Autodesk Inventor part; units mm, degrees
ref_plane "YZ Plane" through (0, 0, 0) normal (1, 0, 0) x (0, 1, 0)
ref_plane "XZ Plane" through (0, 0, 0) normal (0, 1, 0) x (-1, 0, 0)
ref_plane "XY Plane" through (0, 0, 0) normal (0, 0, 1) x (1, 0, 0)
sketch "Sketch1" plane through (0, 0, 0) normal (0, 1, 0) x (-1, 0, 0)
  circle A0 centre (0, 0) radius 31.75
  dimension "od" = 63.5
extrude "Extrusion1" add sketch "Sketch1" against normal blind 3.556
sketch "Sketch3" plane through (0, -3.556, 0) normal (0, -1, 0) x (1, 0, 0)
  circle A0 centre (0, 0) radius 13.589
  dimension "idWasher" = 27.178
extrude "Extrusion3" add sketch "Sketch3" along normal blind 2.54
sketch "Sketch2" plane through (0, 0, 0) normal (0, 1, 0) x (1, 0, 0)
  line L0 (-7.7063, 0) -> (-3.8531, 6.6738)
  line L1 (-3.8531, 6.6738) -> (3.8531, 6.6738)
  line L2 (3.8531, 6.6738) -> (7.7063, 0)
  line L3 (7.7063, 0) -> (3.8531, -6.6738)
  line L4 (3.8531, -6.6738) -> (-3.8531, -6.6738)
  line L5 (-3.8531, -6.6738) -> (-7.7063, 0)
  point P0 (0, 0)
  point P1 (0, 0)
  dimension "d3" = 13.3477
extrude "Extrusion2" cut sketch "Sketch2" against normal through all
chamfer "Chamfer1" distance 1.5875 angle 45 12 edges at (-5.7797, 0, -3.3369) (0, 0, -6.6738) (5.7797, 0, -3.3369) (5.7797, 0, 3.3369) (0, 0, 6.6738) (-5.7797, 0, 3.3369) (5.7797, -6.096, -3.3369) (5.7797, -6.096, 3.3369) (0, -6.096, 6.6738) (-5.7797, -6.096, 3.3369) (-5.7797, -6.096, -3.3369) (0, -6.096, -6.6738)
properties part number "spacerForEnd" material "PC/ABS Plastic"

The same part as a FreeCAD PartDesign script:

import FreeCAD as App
import Part
import Sketcher
from FreeCAD import Vector
Q = App.Units.Quantity


def edges_at(feature, points):
    """Names of the edges that pass closest to the given points."""
    edges = feature.Shape.Edges
    near = lambda p: min(range(len(edges)), key=lambda i: edges[i].distToShape(Part.Vertex(*p))[0])
    return sorted({f"Edge{near(p) + 1}" for p in points})

doc = App.newDocument("Part")
body = doc.addObject("PartDesign::Body", "Body")

# Sketch on XZ plane
sketch1 = body.newObject("Sketcher::SketchObject", "Sketch")
sketch1.AttachmentSupport = (doc.getObject("XZ_Plane"), [""])
sketch1.MapMode = "FlatFace"
sketch1.addGeometry(Part.Circle(Vector(0, 0, 0), Vector(0, 0, 1), 31.75), False)
sketch1.addConstraint(Sketcher.Constraint("Coincident", 0, 3, -1, 1))
sketch1.addConstraint(Sketcher.Constraint("Diameter", 0, Q("2.5 in")))
pad1 = body.newObject("PartDesign::Pad", "Pad")
pad1.Profile = sketch1
pad1.Length = Q("0.14 in")

# Sketch on XZ plane
sketch2 = body.newObject("Sketcher::SketchObject", "Sketch001")
sketch2.AttachmentSupport = (doc.getObject("XZ_Plane"), [""])
sketch2.MapMode = "FlatFace"
sketch2.AttachmentOffset = App.Placement(Vector(0, 0, 0.14 * 25.4), App.Rotation())
sketch2.addGeometry(Part.Circle(Vector(0, 0, 0), Vector(0, 0, 1), 13.589), False)
sketch2.addConstraint(Sketcher.Constraint("Coincident", 0, 3, -1, 1))
sketch2.addConstraint(Sketcher.Constraint("Diameter", 0, Q("1.07 in")))
pad2 = body.newObject("PartDesign::Pad", "Pad001")
pad2.Profile = sketch2
pad2.Length = Q("0.1 in")

# Sketch on XZ plane
sketch3 = body.newObject("Sketcher::SketchObject", "Sketch002")
sketch3.AttachmentSupport = (doc.getObject("XZ_Plane"), [""])
sketch3.MapMode = "FlatFace"
sketch3.addGeometry(Part.LineSegment(Vector(-3.8531, -6.6738, 0), Vector(-7.7063, 0, 0)), False)
sketch3.addGeometry(Part.LineSegment(Vector(-7.7063, 0, 0), Vector(-3.8531, 6.6738, 0)), False)
sketch3.addGeometry(Part.LineSegment(Vector(-3.8531, 6.6738, 0), Vector(3.8531, 6.6738, 0)), False)
sketch3.addGeometry(Part.LineSegment(Vector(3.8531, 6.6738, 0), Vector(7.7063, 0, 0)), False)
sketch3.addGeometry(Part.LineSegment(Vector(7.7063, 0, 0), Vector(3.8531, -6.6738, 0)), False)
sketch3.addGeometry(Part.LineSegment(Vector(3.8531, -6.6738, 0), Vector(-3.8531, -6.6738, 0)), False)
sketch3.addConstraint(Sketcher.Constraint("Coincident", 0, 2, 1, 1))
sketch3.addConstraint(Sketcher.Constraint("Coincident", 1, 2, 2, 1))
sketch3.addConstraint(Sketcher.Constraint("Coincident", 2, 2, 3, 1))
sketch3.addConstraint(Sketcher.Constraint("Coincident", 3, 2, 4, 1))
sketch3.addConstraint(Sketcher.Constraint("Coincident", 4, 2, 5, 1))
sketch3.addConstraint(Sketcher.Constraint("Coincident", 5, 2, 0, 1))
sketch3.addConstraint(Sketcher.Constraint("Horizontal", 2))
sketch3.addConstraint(Sketcher.Constraint("Horizontal", 5))
sketch3.addConstraint(Sketcher.Constraint("Symmetric", 0, 2, 3, 2, -1, 1))
sketch3.addConstraint(Sketcher.Constraint("Symmetric", 1, 2, 4, 2, -1, 1))
sketch3.addConstraint(Sketcher.Constraint("PointOnObject", 0, 2, -1))
sketch3.addConstraint(Sketcher.Constraint("Parallel", 0, 3))
sketch3.addConstraint(Sketcher.Constraint("Vertical", 2, 2, 4, 2))
sketch3.addConstraint(Sketcher.Constraint("Angle", 0, Q("120.0005 deg")))
sketch3.addConstraint(Sketcher.Constraint("DistanceY", 4, 2, 2, 2, Q("0.5255 in")))
sketch3.addConstraint(Sketcher.Constraint("DistanceX", 2, 1, 2, 2, Q("0.3034 in")))
pocket1 = body.newObject("PartDesign::Pocket", "Pocket")
pocket1.Profile = sketch3
pocket1.Type = "ThroughAll"
pocket1.Reversed = True
doc.recompute()

chamfer = body.newObject("PartDesign::Chamfer", "Chamfer")
chamfer.Base = (pocket1, edges_at(pocket1, [
    (-5.78, 0, -3.337),
    (0, 0, -6.674),
    (5.78, 0, -3.337),
    (5.78, 0, 3.337),
    (0, 0, 6.674),
    (-5.78, 0, 3.337),
    (5.78, -6.096, -3.337),
    (5.78, -6.096, 3.337),
    (0, -6.096, 6.674),
    (-5.78, -6.096, 3.337),
    (-5.78, -6.096, -3.337),
    (0, -6.096, -6.674),
]))
chamfer.Size = Q("0.0625 in")

doc.recompute()
